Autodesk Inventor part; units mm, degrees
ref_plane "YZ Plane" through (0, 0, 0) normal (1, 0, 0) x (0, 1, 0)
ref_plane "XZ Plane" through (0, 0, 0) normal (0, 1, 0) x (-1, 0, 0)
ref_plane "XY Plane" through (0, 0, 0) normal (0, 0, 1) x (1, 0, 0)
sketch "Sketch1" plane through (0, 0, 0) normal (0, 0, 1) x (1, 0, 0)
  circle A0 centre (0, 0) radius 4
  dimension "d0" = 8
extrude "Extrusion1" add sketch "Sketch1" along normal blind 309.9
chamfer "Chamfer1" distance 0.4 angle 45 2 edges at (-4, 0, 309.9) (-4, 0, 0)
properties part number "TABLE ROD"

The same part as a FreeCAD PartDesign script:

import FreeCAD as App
import Part
import Sketcher


def edges_at(feature, points):
    """Names of the edges that pass closest to the given points."""
    edges = feature.Shape.Edges
    near = lambda p: min(range(len(edges)), key=lambda i: edges[i].distToShape(Part.Vertex(*p))[0])
    return sorted({f"Edge{near(p) + 1}" for p in points})

doc = App.newDocument("Part")
body = doc.addObject("PartDesign::Body", "Body")

sketch1 = doc.addObject("Sketcher::SketchObject", "Sketch")
body.addObject(sketch1)
sketch1.AttachmentSupport = (doc.XY_Plane, [""])
sketch1.MapMode = "FlatFace"
sketch1.addGeometry(Part.Circle(App.Vector(0, 0, 0), App.Vector(0, 0, 1), 4), False)
sketch1.addConstraint(Sketcher.Constraint("Coincident", 0, 3, -1, 1))
sketch1.addConstraint(Sketcher.Constraint("Diameter", 0, 8.0))
pad1 = doc.addObject("PartDesign::Pad", "Pad")
body.addObject(pad1)
pad1.Profile = sketch1
pad1.Length = 309.9
doc.recompute()

chamfer = doc.addObject("PartDesign::Chamfer", "Chamfer")
body.addObject(chamfer)
chamfer.Base = (pad1, edges_at(pad1, [(-4, 0, 309.9), (-4, 0, 0)]))
chamfer.Size = 0.4

doc.recompute()
